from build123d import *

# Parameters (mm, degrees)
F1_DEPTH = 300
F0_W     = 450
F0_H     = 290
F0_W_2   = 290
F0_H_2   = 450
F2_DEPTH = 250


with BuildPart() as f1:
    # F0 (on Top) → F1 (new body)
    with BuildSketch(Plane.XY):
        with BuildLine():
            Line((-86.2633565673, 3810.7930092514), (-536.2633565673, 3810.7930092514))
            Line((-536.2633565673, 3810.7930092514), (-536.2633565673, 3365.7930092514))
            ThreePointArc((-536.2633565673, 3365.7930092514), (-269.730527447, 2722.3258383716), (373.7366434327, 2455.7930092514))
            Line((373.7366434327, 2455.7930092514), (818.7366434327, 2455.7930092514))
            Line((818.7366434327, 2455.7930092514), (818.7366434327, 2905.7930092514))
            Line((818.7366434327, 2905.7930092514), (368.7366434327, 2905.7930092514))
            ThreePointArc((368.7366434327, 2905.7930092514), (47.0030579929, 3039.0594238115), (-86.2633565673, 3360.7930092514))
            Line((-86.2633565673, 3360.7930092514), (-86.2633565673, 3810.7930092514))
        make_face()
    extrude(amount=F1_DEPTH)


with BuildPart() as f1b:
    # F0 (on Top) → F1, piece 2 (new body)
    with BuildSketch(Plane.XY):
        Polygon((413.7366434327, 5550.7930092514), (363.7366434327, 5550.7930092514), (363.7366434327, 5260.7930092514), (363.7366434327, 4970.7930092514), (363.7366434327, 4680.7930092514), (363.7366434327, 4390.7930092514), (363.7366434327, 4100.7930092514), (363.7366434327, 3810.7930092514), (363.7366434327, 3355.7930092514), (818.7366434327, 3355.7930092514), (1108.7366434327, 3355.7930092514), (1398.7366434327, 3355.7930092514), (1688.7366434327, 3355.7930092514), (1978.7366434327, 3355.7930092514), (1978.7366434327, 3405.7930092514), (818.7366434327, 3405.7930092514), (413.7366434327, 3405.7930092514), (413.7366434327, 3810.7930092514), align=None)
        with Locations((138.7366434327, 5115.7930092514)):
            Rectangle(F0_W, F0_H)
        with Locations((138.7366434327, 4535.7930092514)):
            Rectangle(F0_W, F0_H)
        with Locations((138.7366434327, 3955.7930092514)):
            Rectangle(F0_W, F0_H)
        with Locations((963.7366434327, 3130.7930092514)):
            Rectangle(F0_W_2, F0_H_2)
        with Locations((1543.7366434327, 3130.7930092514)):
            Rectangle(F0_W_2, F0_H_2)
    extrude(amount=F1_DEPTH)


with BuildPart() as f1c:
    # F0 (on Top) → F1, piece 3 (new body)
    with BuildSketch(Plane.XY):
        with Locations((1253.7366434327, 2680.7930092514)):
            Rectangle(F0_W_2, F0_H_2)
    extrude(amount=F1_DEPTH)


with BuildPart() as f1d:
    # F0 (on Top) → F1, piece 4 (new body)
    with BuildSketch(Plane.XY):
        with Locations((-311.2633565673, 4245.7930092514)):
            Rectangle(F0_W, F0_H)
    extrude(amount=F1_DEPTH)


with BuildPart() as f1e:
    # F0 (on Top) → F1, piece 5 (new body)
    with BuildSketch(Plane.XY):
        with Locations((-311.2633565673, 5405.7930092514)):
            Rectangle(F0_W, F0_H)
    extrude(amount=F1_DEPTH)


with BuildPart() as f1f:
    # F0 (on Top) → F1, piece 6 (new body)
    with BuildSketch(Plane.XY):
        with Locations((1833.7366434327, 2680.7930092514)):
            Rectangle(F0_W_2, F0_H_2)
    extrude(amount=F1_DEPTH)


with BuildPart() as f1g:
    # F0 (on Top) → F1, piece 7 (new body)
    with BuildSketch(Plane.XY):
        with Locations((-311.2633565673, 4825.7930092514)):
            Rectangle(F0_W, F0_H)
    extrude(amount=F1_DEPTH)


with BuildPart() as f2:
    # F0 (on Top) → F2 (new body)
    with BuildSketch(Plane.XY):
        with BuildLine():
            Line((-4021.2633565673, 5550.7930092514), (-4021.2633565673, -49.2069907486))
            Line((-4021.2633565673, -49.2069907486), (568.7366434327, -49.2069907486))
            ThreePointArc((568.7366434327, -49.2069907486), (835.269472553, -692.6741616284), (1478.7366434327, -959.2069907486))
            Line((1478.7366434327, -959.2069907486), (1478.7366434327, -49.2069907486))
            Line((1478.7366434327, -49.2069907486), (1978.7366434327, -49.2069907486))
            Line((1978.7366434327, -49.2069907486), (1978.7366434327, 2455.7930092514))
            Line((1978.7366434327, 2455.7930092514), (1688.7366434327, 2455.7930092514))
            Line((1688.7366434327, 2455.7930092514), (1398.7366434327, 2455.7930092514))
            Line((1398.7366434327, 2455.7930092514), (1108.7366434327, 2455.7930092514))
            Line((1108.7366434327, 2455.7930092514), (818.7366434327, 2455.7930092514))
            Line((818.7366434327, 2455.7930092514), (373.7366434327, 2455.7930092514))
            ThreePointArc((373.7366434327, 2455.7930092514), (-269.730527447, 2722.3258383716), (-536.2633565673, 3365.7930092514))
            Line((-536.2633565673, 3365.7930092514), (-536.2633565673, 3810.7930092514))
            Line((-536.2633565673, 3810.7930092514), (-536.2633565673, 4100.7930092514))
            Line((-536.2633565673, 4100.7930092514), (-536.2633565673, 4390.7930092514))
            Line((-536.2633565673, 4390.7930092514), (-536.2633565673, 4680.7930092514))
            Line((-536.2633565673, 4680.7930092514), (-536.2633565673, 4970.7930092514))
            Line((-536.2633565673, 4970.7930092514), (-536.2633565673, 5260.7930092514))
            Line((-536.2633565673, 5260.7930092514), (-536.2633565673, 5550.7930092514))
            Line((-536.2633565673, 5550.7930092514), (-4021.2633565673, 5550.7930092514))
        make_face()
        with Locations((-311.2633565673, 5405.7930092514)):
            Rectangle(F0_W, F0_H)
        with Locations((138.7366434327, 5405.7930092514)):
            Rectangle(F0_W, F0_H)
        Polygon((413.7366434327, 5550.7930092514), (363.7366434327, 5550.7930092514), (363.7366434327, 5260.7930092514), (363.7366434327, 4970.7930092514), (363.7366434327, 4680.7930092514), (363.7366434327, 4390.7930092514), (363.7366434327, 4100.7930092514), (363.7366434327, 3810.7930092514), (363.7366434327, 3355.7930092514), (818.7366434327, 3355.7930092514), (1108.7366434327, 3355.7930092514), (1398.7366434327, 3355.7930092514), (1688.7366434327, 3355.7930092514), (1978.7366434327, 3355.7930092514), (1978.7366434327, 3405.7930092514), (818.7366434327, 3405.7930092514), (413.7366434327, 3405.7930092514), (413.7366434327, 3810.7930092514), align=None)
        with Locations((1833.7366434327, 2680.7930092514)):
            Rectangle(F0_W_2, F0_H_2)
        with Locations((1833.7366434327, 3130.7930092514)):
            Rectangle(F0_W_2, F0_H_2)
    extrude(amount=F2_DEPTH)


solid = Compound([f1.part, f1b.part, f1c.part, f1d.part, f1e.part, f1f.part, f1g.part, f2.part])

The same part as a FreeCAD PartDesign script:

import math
import FreeCAD as App
import Part
import Sketcher

V = App.Vector


def add_polygon(sketch, points):
    """Adds a closed chain of lines whose ends are joined by coincident constraints."""
    first, n = sketch.GeometryCount, len(points)
    for a, b in zip(points, points[1:] + points[:1]):
        sketch.addGeometry(Part.LineSegment(App.Vector(*a, 0), App.Vector(*b, 0)), False)
    for i in range(n):
        sketch.addConstraint(Sketcher.Constraint("Coincident", first + i, 2, first + (i + 1) % n, 1))

doc = App.newDocument("Part")
body = doc.addObject("PartDesign::Body", "Body")

# Sketch on XY plane
sketch1 = doc.addObject("Sketcher::SketchObject", "Sketch")
body.addObject(sketch1)
sketch1.AttachmentSupport = (doc.XY_Plane, [""])
sketch1.MapMode = "FlatFace"
sketch1.addGeometry([
    Part.LineSegment(V(-86.263357, 3810.793009, 0), V(-536.263357, 3810.793009, 0)),  # 0
    Part.LineSegment(V(-536.263357, 3810.793009, 0), V(-536.263357, 3365.793009, 0)),  # 1
    Part.ArcOfCircle(Part.Circle(V(373.736643, 3365.793009, 0), V(0, 0, 1), 910), math.radians(180), math.radians(270)),  # 2
    Part.LineSegment(V(373.736643, 2455.793009, 0), V(818.736643, 2455.793009, 0)),  # 3
    Part.LineSegment(V(818.736643, 2455.793009, 0), V(818.736643, 2905.793009, 0)),  # 4
    Part.LineSegment(V(818.736643, 2905.793009, 0), V(368.736643, 2905.793009, 0)),  # 5
    Part.ArcOfCircle(Part.Circle(V(368.736643, 3360.793009, 0), V(0, 0, 1), 455), math.radians(180), math.radians(270)),  # 6
    Part.LineSegment(V(-86.263357, 3360.793009, 0), V(-86.263357, 3810.793009, 0)),  # 7
], False)
sketch1.addConstraint([
    Sketcher.Constraint("Coincident", 0, 2, 1, 1),
    Sketcher.Constraint("Tangent", 1, 2, 2, 1),
    Sketcher.Constraint("Tangent", 2, 2, 3, 1),
    Sketcher.Constraint("Coincident", 3, 2, 4, 1),
    Sketcher.Constraint("Coincident", 4, 2, 5, 1),
    Sketcher.Constraint("Tangent", 5, 2, 6, 2),
    Sketcher.Constraint("Tangent", 6, 1, 7, 1),
    Sketcher.Constraint("Coincident", 7, 2, 0, 1),
    Sketcher.Constraint("Horizontal", 0),
    Sketcher.Constraint("Vertical", 1),
    Sketcher.Constraint("Horizontal", 3),
    Sketcher.Constraint("Vertical", 4),
    Sketcher.Constraint("Horizontal", 5),
    Sketcher.Constraint("Vertical", 7),
    Sketcher.Constraint("Equal", 0, 5),
    Sketcher.Constraint("Equal", 3, 1),
    Sketcher.Constraint("Equal", 5, 4),
    Sketcher.Constraint("Radius", 2, 910.0),
    Sketcher.Constraint("Radius", 6, 455.0),
    Sketcher.Constraint("DistanceX", 0, 2, 0, 1, 450.0),
    Sketcher.Constraint("DistanceY", -1, 1, 2, 3, 3365.793009),
    Sketcher.Constraint("DistanceX", -1, 1, 2, 3, 373.736643),
])
pad1 = doc.addObject("PartDesign::Pad", "Pad")
body.addObject(pad1)
pad1.Profile = sketch1
pad1.Length = 300
body2 = doc.addObject("PartDesign::Body", "Body001")

# Sketch on XY plane
sketch2 = doc.addObject("Sketcher::SketchObject", "Sketch001")
body2.addObject(sketch2)
sketch2.AttachmentSupport = (doc.getObject("XY_Plane001"), [""])
sketch2.MapMode = "FlatFace"
add_polygon(sketch2, [(413.736643, 5550.793009), (363.736643, 5550.793009), (363.736643, 5260.793009), (-86.263357, 5260.793009), (-86.263357, 4970.793009), (363.736643, 4970.793009), (363.736643, 4680.793009), (-86.263357, 4680.793009), (-86.263357, 4390.793009), (363.736643, 4390.793009), (363.736643, 4100.793009), (-86.263357, 4100.793009), (-86.263357, 3810.793009), (363.736643, 3810.793009), (363.736643, 3355.793009), (818.736643, 3355.793009), (818.736643, 2905.793009), (1108.736643, 2905.793009), (1108.736643, 3355.793009), (1398.736643, 3355.793009), (1398.736643, 2905.793009), (1688.736643, 2905.793009), (1688.736643, 3355.793009), (1978.736643, 3355.793009), (1978.736643, 3405.793009), (413.736643, 3405.793009)])  # lines 0-25
sketch2.addConstraint([
    Sketcher.Constraint("Horizontal", 0),
    Sketcher.Constraint("Vertical", 1),
    Sketcher.Constraint("Horizontal", 2),
    Sketcher.Constraint("Vertical", 3),
    Sketcher.Constraint("Horizontal", 4),
    Sketcher.Constraint("Vertical", 5),
    Sketcher.Constraint("Horizontal", 6),
    Sketcher.Constraint("Vertical", 7),
    Sketcher.Constraint("Horizontal", 8),
    Sketcher.Constraint("Vertical", 9),
    Sketcher.Constraint("Horizontal", 10),
    Sketcher.Constraint("Vertical", 11),
    Sketcher.Constraint("Horizontal", 12),
    Sketcher.Constraint("Vertical", 13),
    Sketcher.Constraint("Horizontal", 14),
    Sketcher.Constraint("Vertical", 15),
    Sketcher.Constraint("Horizontal", 16),
    Sketcher.Constraint("Vertical", 17),
    Sketcher.Constraint("Horizontal", 18),
    Sketcher.Constraint("Vertical", 19),
    Sketcher.Constraint("Horizontal", 20),
    Sketcher.Constraint("Vertical", 21),
    Sketcher.Constraint("Horizontal", 22),
    Sketcher.Constraint("Vertical", 23),
    Sketcher.Constraint("Horizontal", 24),
    Sketcher.Constraint("Vertical", 25),
    Sketcher.Constraint("Horizontal", 14, 2, 17, 2),
    Sketcher.Constraint("Horizontal", 16, 2, 19, 2),
    Sketcher.Constraint("Horizontal", 18, 2, 21, 2),
    Sketcher.Constraint("Vertical", 1, 2, 4, 2),
    Sketcher.Constraint("Vertical", 3, 2, 6, 2),
    Sketcher.Constraint("Vertical", 5, 2, 8, 2),
    Sketcher.Constraint("Vertical", 7, 2, 10, 2),
    Sketcher.Constraint("Vertical", 9, 2, 12, 2),
    Sketcher.Constraint("Equal", 16, 18),
    Sketcher.Constraint("Equal", 18, 20),
    Sketcher.Constraint("Equal", 20, 22),
    Sketcher.Constraint("Equal", 22, 1),
    Sketcher.Constraint("Equal", 1, 3),
    Sketcher.Constraint("Equal", 3, 5),
    Sketcher.Constraint("Equal", 5, 7),
    Sketcher.Constraint("Equal", 7, 9),
    Sketcher.Constraint("Equal", 9, 11),
    Sketcher.Constraint("Equal", 14, 13),
    Sketcher.Constraint("Equal", 12, 15),
    Sketcher.Constraint("Equal", 0, 23),
    Sketcher.Constraint("DistanceX", 0, 2, 0, 1, 50.0),
    Sketcher.Constraint("DistanceX", 2, 2, 2, 1, 450.0),
    Sketcher.Constraint("DistanceX", 14, 1, 14, 2, 455.0),
    Sketcher.Constraint("DistanceX", 16, 1, 16, 2, 290.0),
    Sketcher.Constraint("DistanceY", -1, 1, 0, 2, 5550.793009),
    Sketcher.Constraint("DistanceX", -1, 1, 0, 2, 363.736643),
])
pad2 = doc.addObject("PartDesign::Pad", "Pad001")
body2.addObject(pad2)
pad2.Profile = sketch2
pad2.Length = 300
body3 = doc.addObject("PartDesign::Body", "Body002")

# Sketch on XY plane
sketch3 = doc.addObject("Sketcher::SketchObject", "Sketch002")
body3.addObject(sketch3)
sketch3.AttachmentSupport = (doc.getObject("XY_Plane002"), [""])
sketch3.MapMode = "FlatFace"
add_polygon(sketch3, [(1108.736643, 2905.793009), (1108.736643, 2455.793009), (1398.736643, 2455.793009), (1398.736643, 2905.793009)])  # lines 0-3
sketch3.addConstraint([
    Sketcher.Constraint("Vertical", 0),
    Sketcher.Constraint("Horizontal", 1),
    Sketcher.Constraint("Vertical", 2),
    Sketcher.Constraint("Horizontal", 3),
    Sketcher.Constraint("DistanceX", 1, 1, 1, 2, 290.0),
    Sketcher.Constraint("DistanceY", 0, 2, 0, 1, 450.0),
    Sketcher.Constraint("DistanceY", -1, 1, 0, 2, 2455.793009),
    Sketcher.Constraint("DistanceX", -1, 1, 0, 2, 1108.736643),
])
pad3 = doc.addObject("PartDesign::Pad", "Pad002")
body3.addObject(pad3)
pad3.Profile = sketch3
pad3.Length = 300
body4 = doc.addObject("PartDesign::Body", "Body003")

# Sketch on XY plane
sketch4 = doc.addObject("Sketcher::SketchObject", "Sketch003")
body4.addObject(sketch4)
sketch4.AttachmentSupport = (doc.getObject("XY_Plane003"), [""])
sketch4.MapMode = "FlatFace"
add_polygon(sketch4, [(-536.263357, 4390.793009), (-536.263357, 4100.793009), (-86.263357, 4100.793009), (-86.263357, 4390.793009)])  # lines 0-3
sketch4.addConstraint([
    Sketcher.Constraint("Vertical", 0),
    Sketcher.Constraint("Horizontal", 1),
    Sketcher.Constraint("Vertical", 2),
    Sketcher.Constraint("Horizontal", 3),
    Sketcher.Constraint("DistanceX", 1, 1, 1, 2, 450.0),
    Sketcher.Constraint("DistanceY", 0, 2, 0, 1, 290.0),
    Sketcher.Constraint("DistanceY", -1, 1, 0, 2, 4100.793009),
    Sketcher.Constraint("DistanceX", 0, 2, -1, 1, 536.263357),
])
pad4 = doc.addObject("PartDesign::Pad", "Pad003")
body4.addObject(pad4)
pad4.Profile = sketch4
pad4.Length = 300
body5 = doc.addObject("PartDesign::Body", "Body004")

# Sketch on XY plane
sketch5 = doc.addObject("Sketcher::SketchObject", "Sketch004")
body5.addObject(sketch5)
sketch5.AttachmentSupport = (doc.getObject("XY_Plane004"), [""])
sketch5.MapMode = "FlatFace"
add_polygon(sketch5, [(-536.263357, 5550.793009), (-536.263357, 5260.793009), (-86.263357, 5260.793009), (-86.263357, 5550.793009)])  # lines 0-3
sketch5.addConstraint([
    Sketcher.Constraint("Vertical", 0),
    Sketcher.Constraint("Horizontal", 1),
    Sketcher.Constraint("Vertical", 2),
    Sketcher.Constraint("Horizontal", 3),
    Sketcher.Constraint("DistanceX", 1, 1, 1, 2, 450.0),
    Sketcher.Constraint("DistanceY", 0, 2, 0, 1, 290.0),
    Sketcher.Constraint("DistanceY", -1, 1, 0, 2, 5260.793009),
    Sketcher.Constraint("DistanceX", 0, 2, -1, 1, 536.263357),
])
pad5 = doc.addObject("PartDesign::Pad", "Pad004")
body5.addObject(pad5)
pad5.Profile = sketch5
pad5.Length = 300
body6 = doc.addObject("PartDesign::Body", "Body005")

# Sketch on XY plane
sketch6 = doc.addObject("Sketcher::SketchObject", "Sketch005")
body6.addObject(sketch6)
sketch6.AttachmentSupport = (doc.getObject("XY_Plane005"), [""])
sketch6.MapMode = "FlatFace"
add_polygon(sketch6, [(1688.736643, 2905.793009), (1688.736643, 2455.793009), (1978.736643, 2455.793009), (1978.736643, 2905.793009)])  # lines 0-3
sketch6.addConstraint([
    Sketcher.Constraint("Vertical", 0),
    Sketcher.Constraint("Horizontal", 1),
    Sketcher.Constraint("Vertical", 2),
    Sketcher.Constraint("Horizontal", 3),
    Sketcher.Constraint("DistanceX", 1, 1, 1, 2, 290.0),
    Sketcher.Constraint("DistanceY", 0, 2, 0, 1, 450.0),
    Sketcher.Constraint("DistanceY", -1, 1, 0, 2, 2455.793009),
    Sketcher.Constraint("DistanceX", -1, 1, 0, 2, 1688.736643),
])
pad6 = doc.addObject("PartDesign::Pad", "Pad005")
body6.addObject(pad6)
pad6.Profile = sketch6
pad6.Length = 300
body7 = doc.addObject("PartDesign::Body", "Body006")

# Sketch on XY plane
sketch7 = doc.addObject("Sketcher::SketchObject", "Sketch006")
body7.addObject(sketch7)
sketch7.AttachmentSupport = (doc.getObject("XY_Plane006"), [""])
sketch7.MapMode = "FlatFace"
add_polygon(sketch7, [(-536.263357, 4970.793009), (-536.263357, 4680.793009), (-86.263357, 4680.793009), (-86.263357, 4970.793009)])  # lines 0-3
sketch7.addConstraint([
    Sketcher.Constraint("Vertical", 0),
    Sketcher.Constraint("Horizontal", 1),
    Sketcher.Constraint("Vertical", 2),
    Sketcher.Constraint("Horizontal", 3),
    Sketcher.Constraint("DistanceX", 1, 1, 1, 2, 450.0),
    Sketcher.Constraint("DistanceY", 0, 2, 0, 1, 290.0),
    Sketcher.Constraint("DistanceY", -1, 1, 0, 2, 4680.793009),
    Sketcher.Constraint("DistanceX", 0, 2, -1, 1, 536.263357),
])
pad7 = doc.addObject("PartDesign::Pad", "Pad006")
body7.addObject(pad7)
pad7.Profile = sketch7
pad7.Length = 300
body8 = doc.addObject("PartDesign::Body", "Body007")

# Sketch on XY plane
sketch8 = doc.addObject("Sketcher::SketchObject", "Sketch007")
body8.addObject(sketch8)
sketch8.AttachmentSupport = (doc.getObject("XY_Plane007"), [""])
sketch8.MapMode = "FlatFace"
sketch8.addGeometry([
    Part.LineSegment(V(-4021.263357, 5550.793009, 0), V(-4021.263357, -49.206991, 0)),  # 0
    Part.LineSegment(V(-4021.263357, -49.206991, 0), V(568.736643, -49.206991, 0)),  # 1
    Part.ArcOfCircle(Part.Circle(V(1478.736643, -49.206991, 0), V(0, 0, 1), 910), math.radians(180), math.radians(270)),  # 2
    Part.LineSegment(V(1478.736643, -959.206991, 0), V(1478.736643, -49.206991, 0)),  # 3
    Part.LineSegment(V(1478.736643, -49.206991, 0), V(1978.736643, -49.206991, 0)),  # 4
    Part.LineSegment(V(1978.736643, -49.206991, 0), V(1978.736643, 3405.793009, 0)),  # 5
    Part.LineSegment(V(1978.736643, 3405.793009, 0), V(413.736643, 3405.793009, 0)),  # 6
    Part.LineSegment(V(413.736643, 3405.793009, 0), V(413.736643, 5550.793009, 0)),  # 7
    Part.LineSegment(V(413.736643, 5550.793009, 0), V(-4021.263357, 5550.793009, 0)),  # 8
    Part.LineSegment(V(1688.736643, 2455.793009, 0), V(373.736643, 2455.793009, 0)),  # 9
    Part.ArcOfCircle(Part.Circle(V(373.736643, 3365.793009, 0), V(0, 0, 1), 910), math.radians(180), math.radians(270)),  # 10
    Part.LineSegment(V(-536.263357, 3365.793009, 0), V(-536.263357, 5260.793009, 0)),  # 11
    Part.LineSegment(V(-536.263357, 5260.793009, 0), V(363.736643, 5260.793009, 0)),  # 12
    Part.LineSegment(V(363.736643, 5260.793009, 0), V(363.736643, 3355.793009, 0)),  # 13
    Part.LineSegment(V(363.736643, 3355.793009, 0), V(1688.736643, 3355.793009, 0)),  # 14
    Part.LineSegment(V(1688.736643, 3355.793009, 0), V(1688.736643, 2455.793009, 0)),  # 15
], False)
sketch8.addConstraint([
    Sketcher.Constraint("Coincident", 0, 2, 1, 1),
    Sketcher.Constraint("Coincident", 1, 2, 2, 1),
    Sketcher.Constraint("Coincident", 2, 2, 3, 1),
    Sketcher.Constraint("Coincident", 3, 2, 4, 1),
    Sketcher.Constraint("Coincident", 4, 2, 5, 1),
    Sketcher.Constraint("Coincident", 5, 2, 6, 1),
    Sketcher.Constraint("Coincident", 6, 2, 7, 1),
    Sketcher.Constraint("Coincident", 7, 2, 8, 1),
    Sketcher.Constraint("Coincident", 8, 2, 0, 1),
    Sketcher.Constraint("Coincident", 9, 2, 10, 2),
    Sketcher.Constraint("Coincident", 10, 1, 11, 1),
    Sketcher.Constraint("Coincident", 11, 2, 12, 1),
    Sketcher.Constraint("Coincident", 12, 2, 13, 1),
    Sketcher.Constraint("Coincident", 13, 2, 14, 1),
    Sketcher.Constraint("Coincident", 14, 2, 15, 1),
    Sketcher.Constraint("Coincident", 15, 2, 9, 1),
    Sketcher.Constraint("Vertical", 0),
    Sketcher.Constraint("Horizontal", 1),
    Sketcher.Constraint("Vertical", 3),
    Sketcher.Constraint("Horizontal", 4),
    Sketcher.Constraint("Vertical", 5),
    Sketcher.Constraint("Horizontal", 6),
    Sketcher.Constraint("Vertical", 7),
    Sketcher.Constraint("Horizontal", 8),
    Sketcher.Constraint("Horizontal", 9),
    Sketcher.Constraint("Vertical", 11),
    Sketcher.Constraint("Horizontal", 12),
    Sketcher.Constraint("Vertical", 13),
    Sketcher.Constraint("Horizontal", 14),
    Sketcher.Constraint("Vertical", 15),
    Sketcher.Constraint("Coincident", 3, 2, 2, 3),
    Sketcher.Constraint("Equal", 2, 10),
    Sketcher.Constraint("Horizontal", 2, 3, 0, 2),
    Sketcher.Constraint("Vertical", 10, 3, 9, 2),
    Sketcher.Constraint("Equal", 12, 15),
    Sketcher.Constraint("Radius", 2, 910.0),
    Sketcher.Constraint("DistanceX", 1, 1, 1, 2, 4590.0),
    Sketcher.Constraint("DistanceX", 4, 1, 4, 2, 500.0),
    Sketcher.Constraint("DistanceX", 6, 2, 6, 1, 1565.0),
    Sketcher.Constraint("DistanceX", 9, 2, 9, 1, 1315.0),
    Sketcher.Constraint("DistanceX", 12, 1, 12, 2, 900.0),
    Sketcher.Constraint("DistanceY", 0, 2, 0, 1, 5600.0),
    Sketcher.Constraint("DistanceY", 5, 1, 5, 2, 3455.0),
    Sketcher.Constraint("DistanceY", 11, 1, 11, 2, 1895.0),
    Sketcher.Constraint("DistanceY", 13, 2, 13, 1, 1905.0),
    Sketcher.Constraint("DistanceX", 10, 3, 2, 3, 1105.0),
    Sketcher.Constraint("DistanceY", 2, 3, 10, 3, 3415.0),
    Sketcher.Constraint("DistanceY", 2, 3, -1, 1, 49.206991),
    Sketcher.Constraint("DistanceX", -1, 1, 2, 3, 1478.736643),
])
pad8 = doc.addObject("PartDesign::Pad", "Pad007")
body8.addObject(pad8)
pad8.Profile = sketch8
pad8.Length = 250

doc.recompute()
